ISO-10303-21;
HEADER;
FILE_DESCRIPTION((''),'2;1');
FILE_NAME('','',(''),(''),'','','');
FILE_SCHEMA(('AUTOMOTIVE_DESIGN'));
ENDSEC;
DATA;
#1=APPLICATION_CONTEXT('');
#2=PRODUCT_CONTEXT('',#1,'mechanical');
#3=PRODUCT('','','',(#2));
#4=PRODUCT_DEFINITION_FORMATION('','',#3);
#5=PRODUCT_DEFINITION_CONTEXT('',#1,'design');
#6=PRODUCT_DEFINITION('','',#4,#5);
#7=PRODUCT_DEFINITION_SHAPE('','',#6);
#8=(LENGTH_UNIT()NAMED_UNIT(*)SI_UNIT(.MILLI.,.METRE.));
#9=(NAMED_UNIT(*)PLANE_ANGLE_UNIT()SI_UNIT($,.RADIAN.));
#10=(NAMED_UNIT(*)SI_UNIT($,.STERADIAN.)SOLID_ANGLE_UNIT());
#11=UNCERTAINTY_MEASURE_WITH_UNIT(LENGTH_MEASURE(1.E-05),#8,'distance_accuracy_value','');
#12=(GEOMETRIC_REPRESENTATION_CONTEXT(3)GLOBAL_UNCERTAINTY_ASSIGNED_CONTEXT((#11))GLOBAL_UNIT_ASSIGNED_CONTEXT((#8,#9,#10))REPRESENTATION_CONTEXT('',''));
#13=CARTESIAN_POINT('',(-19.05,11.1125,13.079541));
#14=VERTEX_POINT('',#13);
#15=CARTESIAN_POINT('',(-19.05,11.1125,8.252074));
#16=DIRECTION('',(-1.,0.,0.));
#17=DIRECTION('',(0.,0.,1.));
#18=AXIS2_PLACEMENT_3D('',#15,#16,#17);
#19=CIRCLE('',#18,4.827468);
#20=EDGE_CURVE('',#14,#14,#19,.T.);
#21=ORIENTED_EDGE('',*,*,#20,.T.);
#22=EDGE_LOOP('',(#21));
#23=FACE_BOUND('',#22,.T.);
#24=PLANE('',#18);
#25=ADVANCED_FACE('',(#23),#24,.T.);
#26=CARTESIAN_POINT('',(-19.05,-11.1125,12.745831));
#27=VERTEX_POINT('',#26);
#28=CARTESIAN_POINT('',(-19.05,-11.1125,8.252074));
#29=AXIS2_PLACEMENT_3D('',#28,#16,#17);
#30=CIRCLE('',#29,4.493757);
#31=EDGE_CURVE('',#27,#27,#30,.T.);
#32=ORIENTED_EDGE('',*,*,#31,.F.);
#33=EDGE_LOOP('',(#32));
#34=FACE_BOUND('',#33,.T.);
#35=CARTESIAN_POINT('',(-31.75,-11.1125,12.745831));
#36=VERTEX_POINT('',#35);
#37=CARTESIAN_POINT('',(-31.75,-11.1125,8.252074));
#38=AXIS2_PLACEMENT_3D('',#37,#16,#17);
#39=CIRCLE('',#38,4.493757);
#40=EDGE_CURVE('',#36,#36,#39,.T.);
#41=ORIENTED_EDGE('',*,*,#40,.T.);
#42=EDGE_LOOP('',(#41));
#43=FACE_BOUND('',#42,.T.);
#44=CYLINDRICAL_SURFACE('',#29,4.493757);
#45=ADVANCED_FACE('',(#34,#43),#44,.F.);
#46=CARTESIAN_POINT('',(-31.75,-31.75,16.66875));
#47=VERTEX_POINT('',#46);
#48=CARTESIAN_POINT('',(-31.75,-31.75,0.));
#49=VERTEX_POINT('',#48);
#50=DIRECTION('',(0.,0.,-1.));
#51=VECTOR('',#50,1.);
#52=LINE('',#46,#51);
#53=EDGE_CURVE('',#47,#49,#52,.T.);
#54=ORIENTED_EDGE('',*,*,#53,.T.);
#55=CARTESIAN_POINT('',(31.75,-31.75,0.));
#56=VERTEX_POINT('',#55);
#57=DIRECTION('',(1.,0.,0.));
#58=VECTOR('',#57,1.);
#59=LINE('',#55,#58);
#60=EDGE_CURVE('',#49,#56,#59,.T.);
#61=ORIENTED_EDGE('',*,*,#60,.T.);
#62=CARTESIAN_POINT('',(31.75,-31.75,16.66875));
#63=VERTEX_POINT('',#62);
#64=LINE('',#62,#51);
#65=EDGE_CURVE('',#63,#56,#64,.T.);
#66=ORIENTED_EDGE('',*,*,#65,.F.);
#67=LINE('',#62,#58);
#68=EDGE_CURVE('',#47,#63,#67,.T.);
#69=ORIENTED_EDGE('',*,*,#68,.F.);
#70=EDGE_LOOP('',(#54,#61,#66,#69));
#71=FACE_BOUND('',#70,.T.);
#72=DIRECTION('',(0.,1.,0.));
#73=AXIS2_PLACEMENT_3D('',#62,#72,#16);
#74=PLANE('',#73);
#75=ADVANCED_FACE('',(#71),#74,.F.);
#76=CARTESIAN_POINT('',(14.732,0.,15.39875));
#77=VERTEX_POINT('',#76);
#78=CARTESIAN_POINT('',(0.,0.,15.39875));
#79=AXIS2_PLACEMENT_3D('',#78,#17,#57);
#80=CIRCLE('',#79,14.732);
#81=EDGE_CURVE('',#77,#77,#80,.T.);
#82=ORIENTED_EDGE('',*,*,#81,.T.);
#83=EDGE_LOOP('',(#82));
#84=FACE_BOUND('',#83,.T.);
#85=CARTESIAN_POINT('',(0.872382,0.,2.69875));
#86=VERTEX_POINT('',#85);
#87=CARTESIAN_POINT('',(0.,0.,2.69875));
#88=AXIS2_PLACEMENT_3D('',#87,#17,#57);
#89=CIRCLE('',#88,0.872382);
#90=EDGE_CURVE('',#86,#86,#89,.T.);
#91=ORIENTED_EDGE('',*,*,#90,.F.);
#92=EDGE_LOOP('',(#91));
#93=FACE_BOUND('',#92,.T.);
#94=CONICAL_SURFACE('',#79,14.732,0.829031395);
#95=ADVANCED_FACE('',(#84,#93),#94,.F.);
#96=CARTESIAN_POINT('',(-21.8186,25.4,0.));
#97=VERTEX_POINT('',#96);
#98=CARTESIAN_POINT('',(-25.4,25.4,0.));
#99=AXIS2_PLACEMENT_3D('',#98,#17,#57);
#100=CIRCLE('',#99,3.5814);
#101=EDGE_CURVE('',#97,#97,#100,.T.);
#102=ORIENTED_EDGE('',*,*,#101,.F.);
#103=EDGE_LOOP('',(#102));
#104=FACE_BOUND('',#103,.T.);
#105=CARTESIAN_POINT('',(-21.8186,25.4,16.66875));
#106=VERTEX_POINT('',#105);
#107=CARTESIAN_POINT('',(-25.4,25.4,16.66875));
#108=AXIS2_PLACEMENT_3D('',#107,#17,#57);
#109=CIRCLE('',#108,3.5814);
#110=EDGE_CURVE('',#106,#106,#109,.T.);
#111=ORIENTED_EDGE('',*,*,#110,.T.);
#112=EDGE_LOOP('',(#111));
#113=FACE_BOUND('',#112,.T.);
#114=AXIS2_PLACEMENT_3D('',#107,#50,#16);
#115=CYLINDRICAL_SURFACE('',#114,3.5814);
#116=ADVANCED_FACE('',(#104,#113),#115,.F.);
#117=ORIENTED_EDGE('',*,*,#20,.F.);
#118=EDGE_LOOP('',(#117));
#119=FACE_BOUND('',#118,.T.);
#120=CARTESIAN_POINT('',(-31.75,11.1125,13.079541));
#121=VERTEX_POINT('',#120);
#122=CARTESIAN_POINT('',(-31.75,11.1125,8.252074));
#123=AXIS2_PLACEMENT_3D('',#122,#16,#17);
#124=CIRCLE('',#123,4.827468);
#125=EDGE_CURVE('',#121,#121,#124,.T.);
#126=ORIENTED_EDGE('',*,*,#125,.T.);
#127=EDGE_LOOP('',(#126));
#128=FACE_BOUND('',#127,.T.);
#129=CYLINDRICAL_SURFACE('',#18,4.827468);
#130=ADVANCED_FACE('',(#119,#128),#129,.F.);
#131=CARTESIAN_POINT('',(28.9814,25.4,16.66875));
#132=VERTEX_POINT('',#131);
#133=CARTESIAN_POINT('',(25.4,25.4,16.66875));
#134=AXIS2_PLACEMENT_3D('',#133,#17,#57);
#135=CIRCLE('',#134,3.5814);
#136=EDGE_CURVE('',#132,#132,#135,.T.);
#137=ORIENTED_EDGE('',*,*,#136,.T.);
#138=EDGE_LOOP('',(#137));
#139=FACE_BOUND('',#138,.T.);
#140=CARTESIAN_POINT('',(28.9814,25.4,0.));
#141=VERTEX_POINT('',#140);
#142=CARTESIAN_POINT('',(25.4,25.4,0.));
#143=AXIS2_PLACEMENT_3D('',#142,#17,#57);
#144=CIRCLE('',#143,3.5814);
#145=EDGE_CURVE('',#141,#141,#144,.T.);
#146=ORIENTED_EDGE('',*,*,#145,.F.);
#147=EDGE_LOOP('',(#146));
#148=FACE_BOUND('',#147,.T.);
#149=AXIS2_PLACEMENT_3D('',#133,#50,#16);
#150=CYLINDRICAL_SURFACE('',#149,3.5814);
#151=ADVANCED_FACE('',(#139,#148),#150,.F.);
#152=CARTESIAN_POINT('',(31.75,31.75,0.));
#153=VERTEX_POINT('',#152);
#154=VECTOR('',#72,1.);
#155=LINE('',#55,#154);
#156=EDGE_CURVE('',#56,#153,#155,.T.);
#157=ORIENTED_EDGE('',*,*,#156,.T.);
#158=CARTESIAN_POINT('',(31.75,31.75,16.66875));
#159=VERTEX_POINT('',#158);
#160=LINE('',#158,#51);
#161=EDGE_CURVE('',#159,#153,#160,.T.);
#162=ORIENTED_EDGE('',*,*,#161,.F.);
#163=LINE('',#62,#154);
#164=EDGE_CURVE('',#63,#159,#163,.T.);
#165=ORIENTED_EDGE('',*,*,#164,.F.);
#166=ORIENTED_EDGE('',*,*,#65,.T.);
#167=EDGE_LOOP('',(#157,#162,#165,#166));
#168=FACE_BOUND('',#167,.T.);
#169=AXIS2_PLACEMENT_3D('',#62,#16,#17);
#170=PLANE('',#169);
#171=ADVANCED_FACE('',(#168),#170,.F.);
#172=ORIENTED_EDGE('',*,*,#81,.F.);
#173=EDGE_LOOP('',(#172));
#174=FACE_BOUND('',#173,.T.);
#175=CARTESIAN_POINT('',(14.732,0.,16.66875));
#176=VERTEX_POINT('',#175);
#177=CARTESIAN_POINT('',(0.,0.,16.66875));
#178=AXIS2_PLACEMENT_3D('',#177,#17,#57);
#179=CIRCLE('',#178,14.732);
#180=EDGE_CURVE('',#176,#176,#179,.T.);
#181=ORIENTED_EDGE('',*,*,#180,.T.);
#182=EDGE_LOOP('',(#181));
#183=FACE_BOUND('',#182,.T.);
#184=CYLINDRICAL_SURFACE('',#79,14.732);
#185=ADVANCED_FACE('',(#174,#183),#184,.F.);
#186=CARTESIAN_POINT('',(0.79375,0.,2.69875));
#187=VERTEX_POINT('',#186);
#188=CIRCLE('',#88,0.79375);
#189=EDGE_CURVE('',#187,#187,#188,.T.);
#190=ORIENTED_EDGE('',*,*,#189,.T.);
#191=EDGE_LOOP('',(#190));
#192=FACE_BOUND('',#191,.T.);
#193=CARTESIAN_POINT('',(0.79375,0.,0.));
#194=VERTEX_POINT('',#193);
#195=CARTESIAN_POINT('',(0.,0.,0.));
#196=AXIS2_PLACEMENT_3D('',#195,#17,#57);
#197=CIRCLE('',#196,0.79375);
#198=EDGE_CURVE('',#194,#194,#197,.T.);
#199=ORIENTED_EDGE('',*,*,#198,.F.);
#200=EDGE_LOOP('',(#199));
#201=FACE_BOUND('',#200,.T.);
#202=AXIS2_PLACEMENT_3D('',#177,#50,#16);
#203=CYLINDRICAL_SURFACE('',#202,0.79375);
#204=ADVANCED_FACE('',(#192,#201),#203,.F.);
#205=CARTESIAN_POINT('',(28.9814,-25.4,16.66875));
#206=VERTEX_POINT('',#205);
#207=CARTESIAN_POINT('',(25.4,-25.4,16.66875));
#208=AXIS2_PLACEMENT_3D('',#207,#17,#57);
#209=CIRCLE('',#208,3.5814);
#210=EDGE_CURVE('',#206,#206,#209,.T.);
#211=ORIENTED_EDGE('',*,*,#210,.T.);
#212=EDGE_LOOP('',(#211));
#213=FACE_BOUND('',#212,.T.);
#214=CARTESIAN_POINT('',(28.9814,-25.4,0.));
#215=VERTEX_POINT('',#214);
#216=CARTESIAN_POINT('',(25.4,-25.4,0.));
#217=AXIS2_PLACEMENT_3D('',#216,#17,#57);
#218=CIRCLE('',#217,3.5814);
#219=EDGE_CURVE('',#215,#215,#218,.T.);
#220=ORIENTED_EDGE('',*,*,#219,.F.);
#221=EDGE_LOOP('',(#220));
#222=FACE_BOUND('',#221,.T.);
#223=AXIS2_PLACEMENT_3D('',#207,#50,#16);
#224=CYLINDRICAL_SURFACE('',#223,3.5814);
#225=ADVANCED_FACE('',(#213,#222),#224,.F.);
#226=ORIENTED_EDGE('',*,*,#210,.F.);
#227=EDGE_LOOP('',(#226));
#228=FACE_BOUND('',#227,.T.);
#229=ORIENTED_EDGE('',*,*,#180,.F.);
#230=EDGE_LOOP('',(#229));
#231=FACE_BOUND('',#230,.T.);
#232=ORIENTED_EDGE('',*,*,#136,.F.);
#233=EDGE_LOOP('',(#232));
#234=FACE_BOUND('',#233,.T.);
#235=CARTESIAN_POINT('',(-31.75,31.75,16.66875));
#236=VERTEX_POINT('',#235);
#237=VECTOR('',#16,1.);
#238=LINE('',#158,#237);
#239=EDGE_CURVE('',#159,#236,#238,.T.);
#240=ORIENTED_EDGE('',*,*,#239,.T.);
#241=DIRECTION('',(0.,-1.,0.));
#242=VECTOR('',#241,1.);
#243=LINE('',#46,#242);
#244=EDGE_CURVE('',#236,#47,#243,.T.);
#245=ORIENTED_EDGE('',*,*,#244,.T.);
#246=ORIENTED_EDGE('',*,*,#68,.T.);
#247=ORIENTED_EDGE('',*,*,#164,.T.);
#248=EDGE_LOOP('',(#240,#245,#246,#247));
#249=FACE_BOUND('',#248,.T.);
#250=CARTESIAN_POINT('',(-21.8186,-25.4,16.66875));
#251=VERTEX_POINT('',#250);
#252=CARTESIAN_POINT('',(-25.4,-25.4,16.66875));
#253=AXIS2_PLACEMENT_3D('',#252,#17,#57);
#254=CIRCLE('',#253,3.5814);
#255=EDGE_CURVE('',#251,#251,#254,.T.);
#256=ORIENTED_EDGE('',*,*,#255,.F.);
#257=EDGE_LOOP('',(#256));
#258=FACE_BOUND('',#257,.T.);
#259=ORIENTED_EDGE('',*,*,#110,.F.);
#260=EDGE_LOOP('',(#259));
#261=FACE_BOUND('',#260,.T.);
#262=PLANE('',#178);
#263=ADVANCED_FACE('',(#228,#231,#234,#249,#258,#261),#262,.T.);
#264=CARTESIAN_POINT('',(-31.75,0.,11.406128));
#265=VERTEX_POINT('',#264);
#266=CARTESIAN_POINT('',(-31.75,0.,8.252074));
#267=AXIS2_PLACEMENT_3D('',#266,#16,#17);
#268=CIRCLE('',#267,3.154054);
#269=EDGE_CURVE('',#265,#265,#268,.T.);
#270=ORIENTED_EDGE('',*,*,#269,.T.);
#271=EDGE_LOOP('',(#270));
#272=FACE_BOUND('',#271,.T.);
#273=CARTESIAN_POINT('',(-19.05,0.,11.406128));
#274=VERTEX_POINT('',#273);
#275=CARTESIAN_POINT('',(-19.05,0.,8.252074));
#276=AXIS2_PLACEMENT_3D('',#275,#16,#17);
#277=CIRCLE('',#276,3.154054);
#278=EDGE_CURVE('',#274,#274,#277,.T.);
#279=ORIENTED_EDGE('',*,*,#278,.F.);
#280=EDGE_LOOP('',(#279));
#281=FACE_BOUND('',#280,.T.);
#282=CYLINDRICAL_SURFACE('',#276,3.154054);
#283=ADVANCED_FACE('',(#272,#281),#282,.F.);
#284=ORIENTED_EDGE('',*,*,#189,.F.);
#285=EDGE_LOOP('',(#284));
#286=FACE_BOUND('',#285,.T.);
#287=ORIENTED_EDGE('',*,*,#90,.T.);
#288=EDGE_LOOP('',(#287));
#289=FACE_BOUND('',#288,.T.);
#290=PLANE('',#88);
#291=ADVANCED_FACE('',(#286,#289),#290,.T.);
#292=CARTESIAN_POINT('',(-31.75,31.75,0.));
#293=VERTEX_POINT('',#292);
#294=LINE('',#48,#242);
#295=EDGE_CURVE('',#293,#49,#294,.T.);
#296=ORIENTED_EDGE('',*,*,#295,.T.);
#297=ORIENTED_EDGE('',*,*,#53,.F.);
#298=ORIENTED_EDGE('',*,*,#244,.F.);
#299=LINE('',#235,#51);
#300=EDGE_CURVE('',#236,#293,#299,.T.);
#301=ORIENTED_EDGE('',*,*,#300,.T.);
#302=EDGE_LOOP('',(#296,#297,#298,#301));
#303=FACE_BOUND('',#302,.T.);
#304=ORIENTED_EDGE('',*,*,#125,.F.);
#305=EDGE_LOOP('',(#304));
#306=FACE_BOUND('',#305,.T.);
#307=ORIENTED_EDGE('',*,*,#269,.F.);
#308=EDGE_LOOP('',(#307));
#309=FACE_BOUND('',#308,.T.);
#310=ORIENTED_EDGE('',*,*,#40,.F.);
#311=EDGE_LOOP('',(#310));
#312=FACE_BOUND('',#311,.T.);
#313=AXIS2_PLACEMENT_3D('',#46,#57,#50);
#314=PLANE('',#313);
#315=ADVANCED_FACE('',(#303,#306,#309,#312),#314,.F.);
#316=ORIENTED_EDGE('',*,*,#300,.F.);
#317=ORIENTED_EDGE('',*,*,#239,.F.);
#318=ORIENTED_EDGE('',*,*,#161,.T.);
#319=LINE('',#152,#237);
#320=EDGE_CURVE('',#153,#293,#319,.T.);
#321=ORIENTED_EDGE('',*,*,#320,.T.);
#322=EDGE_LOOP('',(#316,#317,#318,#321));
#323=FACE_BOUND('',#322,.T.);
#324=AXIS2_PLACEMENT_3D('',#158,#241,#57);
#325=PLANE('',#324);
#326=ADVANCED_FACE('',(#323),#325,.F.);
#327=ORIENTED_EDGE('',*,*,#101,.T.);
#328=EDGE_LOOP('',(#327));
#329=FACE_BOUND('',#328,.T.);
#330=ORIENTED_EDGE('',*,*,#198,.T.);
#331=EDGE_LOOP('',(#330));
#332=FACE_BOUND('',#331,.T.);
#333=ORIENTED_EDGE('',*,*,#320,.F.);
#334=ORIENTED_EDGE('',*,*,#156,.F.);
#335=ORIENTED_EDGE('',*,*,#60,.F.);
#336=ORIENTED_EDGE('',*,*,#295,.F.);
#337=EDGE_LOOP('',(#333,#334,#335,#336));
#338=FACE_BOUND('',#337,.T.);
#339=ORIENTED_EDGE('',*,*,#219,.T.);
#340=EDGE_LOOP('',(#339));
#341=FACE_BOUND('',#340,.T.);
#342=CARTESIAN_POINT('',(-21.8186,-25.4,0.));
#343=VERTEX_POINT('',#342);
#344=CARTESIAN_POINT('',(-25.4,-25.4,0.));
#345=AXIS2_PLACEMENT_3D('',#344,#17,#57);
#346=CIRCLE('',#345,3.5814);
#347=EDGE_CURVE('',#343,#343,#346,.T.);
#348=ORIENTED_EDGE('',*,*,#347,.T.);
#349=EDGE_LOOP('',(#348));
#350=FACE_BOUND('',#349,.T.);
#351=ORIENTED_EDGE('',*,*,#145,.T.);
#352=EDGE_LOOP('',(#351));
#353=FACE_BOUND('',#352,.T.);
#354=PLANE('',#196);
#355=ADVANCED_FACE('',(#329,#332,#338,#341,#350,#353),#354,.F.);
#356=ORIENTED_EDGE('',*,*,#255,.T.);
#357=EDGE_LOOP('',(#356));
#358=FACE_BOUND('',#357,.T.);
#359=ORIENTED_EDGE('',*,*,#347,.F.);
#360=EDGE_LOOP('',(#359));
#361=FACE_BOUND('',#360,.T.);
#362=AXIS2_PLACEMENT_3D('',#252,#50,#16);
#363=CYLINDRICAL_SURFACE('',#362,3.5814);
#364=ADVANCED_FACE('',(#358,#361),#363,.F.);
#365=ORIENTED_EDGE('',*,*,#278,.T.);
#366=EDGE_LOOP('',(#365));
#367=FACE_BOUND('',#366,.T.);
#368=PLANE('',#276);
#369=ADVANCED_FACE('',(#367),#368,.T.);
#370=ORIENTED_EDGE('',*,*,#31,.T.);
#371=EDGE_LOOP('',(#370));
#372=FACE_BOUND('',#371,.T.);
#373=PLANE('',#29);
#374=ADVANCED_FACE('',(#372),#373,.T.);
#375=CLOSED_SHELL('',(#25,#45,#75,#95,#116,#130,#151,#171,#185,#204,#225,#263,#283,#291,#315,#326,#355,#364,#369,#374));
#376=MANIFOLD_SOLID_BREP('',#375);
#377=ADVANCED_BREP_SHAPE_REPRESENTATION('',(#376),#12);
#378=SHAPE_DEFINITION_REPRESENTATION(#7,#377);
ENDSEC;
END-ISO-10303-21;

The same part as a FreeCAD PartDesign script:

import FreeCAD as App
import Part
import Sketcher
from FreeCAD import Vector
Q = App.Units.Quantity

doc = App.newDocument("Part")
body = doc.addObject("PartDesign::Body", "Body")

# Sketch on XY plane
sketch1 = body.newObject("Sketcher::SketchObject", "Sketch")
sketch1.AttachmentSupport = (doc.getObject("XY_Plane"), [""])
sketch1.MapMode = "FlatFace"
sketch1.addGeometry([
    Part.LineSegment(Vector(-31.8, 31.8, 0), Vector(-31.8, -31.8, 0)),  # 0
    Part.LineSegment(Vector(-31.8, -31.8, 0), Vector(31.8, -31.8, 0)),  # 1
    Part.LineSegment(Vector(31.8, -31.8, 0), Vector(31.8, 31.8, 0)),  # 2
    Part.LineSegment(Vector(31.8, 31.8, 0), Vector(-31.8, 31.8, 0)),  # 3
    Part.Circle(Vector(-25.4, -25.4, 0), Vector(0, 0, 1), 3.6),  # 4
    Part.Circle(Vector(25.4, -25.4, 0), Vector(0, 0, 1), 3.6),  # 5
    Part.Circle(Vector(-25.4, 25.4, 0), Vector(0, 0, 1), 3.6),  # 6
    Part.Circle(Vector(0, 0, 0), Vector(0, 0, 1), 0.8),  # 7
    Part.Circle(Vector(25.4, 25.4, 0), Vector(0, 0, 1), 3.6),  # 8
], False)
sketch1.addConstraint([
    Sketcher.Constraint("Coincident", 0, 2, 1, 1),
    Sketcher.Constraint("Coincident", 1, 2, 2, 1),
    Sketcher.Constraint("Coincident", 2, 2, 3, 1),
    Sketcher.Constraint("Coincident", 3, 2, 0, 1),
    Sketcher.Constraint("Vertical", 0),
    Sketcher.Constraint("Horizontal", 1),
    Sketcher.Constraint("Vertical", 2),
    Sketcher.Constraint("Horizontal", 3),
    Sketcher.Constraint("Coincident", 7, 3, -1, 1),
    Sketcher.Constraint("Equal", 4, 5),
    Sketcher.Constraint("Equal", 5, 6),
    Sketcher.Constraint("Equal", 6, 8),
    Sketcher.Constraint("Symmetric", 5, 3, 6, 3, -1, 1),
    Sketcher.Constraint("Symmetric", 4, 3, 8, 3, -1, 1),
    Sketcher.Constraint("Symmetric", 0, 2, 2, 2, -1, 1),
    Sketcher.Constraint("Symmetric", 4, 3, 5, 3, -2),
    Sketcher.Constraint("Equal", 3, 0),
    Sketcher.Constraint("Diameter", 4, Q("0.282 in")),
    Sketcher.Constraint("Diameter", 7, Q("0.0625 in")),
    Sketcher.Constraint("DistanceX", 1, 1, 1, 2, Q("2.5 in")),
    Sketcher.Constraint("DistanceX", 4, 3, -1, 1, Q("1 in")),
    Sketcher.Constraint("DistanceY", 4, 3, -1, 1, Q("1 in")),
])
pad1 = body.newObject("PartDesign::Pad", "Pad")
pad1.Profile = sketch1
pad1.Length = Q("0.65625 in")

# Sketch on XY plane
sketch2 = body.newObject("Sketcher::SketchObject", "Sketch001")
sketch2.AttachmentSupport = (doc.getObject("XY_Plane"), [""])
sketch2.MapMode = "FlatFace"
sketch2.AttachmentOffset = App.Placement(Vector(0, 0, 0.65625 * 25.4), App.Rotation())
sketch2.addGeometry(Part.Circle(Vector(0, 0, 0), Vector(0, 0, 1), 15), False)
sketch2.addConstraint([
    Sketcher.Constraint("Coincident", 0, 3, -1, 1),
    Sketcher.Constraint("Diameter", 0, Q("1.16 in")),
])
pocket1 = body.newObject("PartDesign::Pocket", "Pocket")
pocket1.Profile = sketch2
pocket1.Length = Q("0.05 in")

# Sketch on YZ plane
sketch3 = body.newObject("Sketcher::SketchObject", "Sketch002")
sketch3.AttachmentSupport = (doc.getObject("YZ_Plane"), [""])
sketch3.MapMode = "FlatFace"
sketch3.AttachmentOffset = App.Placement(Vector(0, 0, -1.25 * 25.4), App.Rotation())
sketch3.addGeometry([
    Part.Circle(Vector(11.1, 8.3, 0), Vector(0, 0, 1), 4.8),
    Part.Circle(Vector(0, 8.3, 0), Vector(0, 0, 1), 3.2),
    Part.Circle(Vector(-11.1, 8.3, 0), Vector(0, 0, 1), 4.5),
], False)
sketch3.addConstraint([
    Sketcher.Constraint("Symmetric", 0, 3, 2, 3, -2),
    Sketcher.Constraint("PointOnObject", 1, 3, -2),
    Sketcher.Constraint("Horizontal", 0, 3, 1, 3),
    Sketcher.Constraint("DistanceX", -1, 1, 0, 3, Q("0.4375 in")),
    Sketcher.Constraint("Diameter", 0, 9.654935),
    Sketcher.Constraint("Diameter", 1, 6.308107),
    Sketcher.Constraint("Diameter", 2, 8.987514),
    Sketcher.Constraint("DistanceY", -1, 1, 0, 3, 8.252074),
])
pocket2 = body.newObject("PartDesign::Pocket", "Pocket001")
pocket2.Profile = sketch3
pocket2.Length = Q("0.5 in")
pocket2.Reversed = True

# Sketch on XY plane
sketch4 = body.newObject("Sketcher::SketchObject", "Sketch003")
sketch4.AttachmentSupport = (doc.getObject("XY_Plane"), [""])
sketch4.MapMode = "FlatFace"
sketch4.AttachmentOffset = App.Placement(Vector(0, 0, 15.39875), App.Rotation())
sketch4.addGeometry(Part.Circle(Vector(0, 0, 0), Vector(0, 0, 1), 15), False)
sketch4.addConstraint([
    Sketcher.Constraint("Coincident", 0, 3, -1, 1),
    Sketcher.Constraint("Diameter", 0, Q("1.16 in")),
])
pocket3 = body.newObject("PartDesign::Pocket", "Pocket002")
pocket3.Profile = sketch4
pocket3.Length = Q("0.5 in")
pocket3.TaperAngle = -47.5

doc.recompute()
